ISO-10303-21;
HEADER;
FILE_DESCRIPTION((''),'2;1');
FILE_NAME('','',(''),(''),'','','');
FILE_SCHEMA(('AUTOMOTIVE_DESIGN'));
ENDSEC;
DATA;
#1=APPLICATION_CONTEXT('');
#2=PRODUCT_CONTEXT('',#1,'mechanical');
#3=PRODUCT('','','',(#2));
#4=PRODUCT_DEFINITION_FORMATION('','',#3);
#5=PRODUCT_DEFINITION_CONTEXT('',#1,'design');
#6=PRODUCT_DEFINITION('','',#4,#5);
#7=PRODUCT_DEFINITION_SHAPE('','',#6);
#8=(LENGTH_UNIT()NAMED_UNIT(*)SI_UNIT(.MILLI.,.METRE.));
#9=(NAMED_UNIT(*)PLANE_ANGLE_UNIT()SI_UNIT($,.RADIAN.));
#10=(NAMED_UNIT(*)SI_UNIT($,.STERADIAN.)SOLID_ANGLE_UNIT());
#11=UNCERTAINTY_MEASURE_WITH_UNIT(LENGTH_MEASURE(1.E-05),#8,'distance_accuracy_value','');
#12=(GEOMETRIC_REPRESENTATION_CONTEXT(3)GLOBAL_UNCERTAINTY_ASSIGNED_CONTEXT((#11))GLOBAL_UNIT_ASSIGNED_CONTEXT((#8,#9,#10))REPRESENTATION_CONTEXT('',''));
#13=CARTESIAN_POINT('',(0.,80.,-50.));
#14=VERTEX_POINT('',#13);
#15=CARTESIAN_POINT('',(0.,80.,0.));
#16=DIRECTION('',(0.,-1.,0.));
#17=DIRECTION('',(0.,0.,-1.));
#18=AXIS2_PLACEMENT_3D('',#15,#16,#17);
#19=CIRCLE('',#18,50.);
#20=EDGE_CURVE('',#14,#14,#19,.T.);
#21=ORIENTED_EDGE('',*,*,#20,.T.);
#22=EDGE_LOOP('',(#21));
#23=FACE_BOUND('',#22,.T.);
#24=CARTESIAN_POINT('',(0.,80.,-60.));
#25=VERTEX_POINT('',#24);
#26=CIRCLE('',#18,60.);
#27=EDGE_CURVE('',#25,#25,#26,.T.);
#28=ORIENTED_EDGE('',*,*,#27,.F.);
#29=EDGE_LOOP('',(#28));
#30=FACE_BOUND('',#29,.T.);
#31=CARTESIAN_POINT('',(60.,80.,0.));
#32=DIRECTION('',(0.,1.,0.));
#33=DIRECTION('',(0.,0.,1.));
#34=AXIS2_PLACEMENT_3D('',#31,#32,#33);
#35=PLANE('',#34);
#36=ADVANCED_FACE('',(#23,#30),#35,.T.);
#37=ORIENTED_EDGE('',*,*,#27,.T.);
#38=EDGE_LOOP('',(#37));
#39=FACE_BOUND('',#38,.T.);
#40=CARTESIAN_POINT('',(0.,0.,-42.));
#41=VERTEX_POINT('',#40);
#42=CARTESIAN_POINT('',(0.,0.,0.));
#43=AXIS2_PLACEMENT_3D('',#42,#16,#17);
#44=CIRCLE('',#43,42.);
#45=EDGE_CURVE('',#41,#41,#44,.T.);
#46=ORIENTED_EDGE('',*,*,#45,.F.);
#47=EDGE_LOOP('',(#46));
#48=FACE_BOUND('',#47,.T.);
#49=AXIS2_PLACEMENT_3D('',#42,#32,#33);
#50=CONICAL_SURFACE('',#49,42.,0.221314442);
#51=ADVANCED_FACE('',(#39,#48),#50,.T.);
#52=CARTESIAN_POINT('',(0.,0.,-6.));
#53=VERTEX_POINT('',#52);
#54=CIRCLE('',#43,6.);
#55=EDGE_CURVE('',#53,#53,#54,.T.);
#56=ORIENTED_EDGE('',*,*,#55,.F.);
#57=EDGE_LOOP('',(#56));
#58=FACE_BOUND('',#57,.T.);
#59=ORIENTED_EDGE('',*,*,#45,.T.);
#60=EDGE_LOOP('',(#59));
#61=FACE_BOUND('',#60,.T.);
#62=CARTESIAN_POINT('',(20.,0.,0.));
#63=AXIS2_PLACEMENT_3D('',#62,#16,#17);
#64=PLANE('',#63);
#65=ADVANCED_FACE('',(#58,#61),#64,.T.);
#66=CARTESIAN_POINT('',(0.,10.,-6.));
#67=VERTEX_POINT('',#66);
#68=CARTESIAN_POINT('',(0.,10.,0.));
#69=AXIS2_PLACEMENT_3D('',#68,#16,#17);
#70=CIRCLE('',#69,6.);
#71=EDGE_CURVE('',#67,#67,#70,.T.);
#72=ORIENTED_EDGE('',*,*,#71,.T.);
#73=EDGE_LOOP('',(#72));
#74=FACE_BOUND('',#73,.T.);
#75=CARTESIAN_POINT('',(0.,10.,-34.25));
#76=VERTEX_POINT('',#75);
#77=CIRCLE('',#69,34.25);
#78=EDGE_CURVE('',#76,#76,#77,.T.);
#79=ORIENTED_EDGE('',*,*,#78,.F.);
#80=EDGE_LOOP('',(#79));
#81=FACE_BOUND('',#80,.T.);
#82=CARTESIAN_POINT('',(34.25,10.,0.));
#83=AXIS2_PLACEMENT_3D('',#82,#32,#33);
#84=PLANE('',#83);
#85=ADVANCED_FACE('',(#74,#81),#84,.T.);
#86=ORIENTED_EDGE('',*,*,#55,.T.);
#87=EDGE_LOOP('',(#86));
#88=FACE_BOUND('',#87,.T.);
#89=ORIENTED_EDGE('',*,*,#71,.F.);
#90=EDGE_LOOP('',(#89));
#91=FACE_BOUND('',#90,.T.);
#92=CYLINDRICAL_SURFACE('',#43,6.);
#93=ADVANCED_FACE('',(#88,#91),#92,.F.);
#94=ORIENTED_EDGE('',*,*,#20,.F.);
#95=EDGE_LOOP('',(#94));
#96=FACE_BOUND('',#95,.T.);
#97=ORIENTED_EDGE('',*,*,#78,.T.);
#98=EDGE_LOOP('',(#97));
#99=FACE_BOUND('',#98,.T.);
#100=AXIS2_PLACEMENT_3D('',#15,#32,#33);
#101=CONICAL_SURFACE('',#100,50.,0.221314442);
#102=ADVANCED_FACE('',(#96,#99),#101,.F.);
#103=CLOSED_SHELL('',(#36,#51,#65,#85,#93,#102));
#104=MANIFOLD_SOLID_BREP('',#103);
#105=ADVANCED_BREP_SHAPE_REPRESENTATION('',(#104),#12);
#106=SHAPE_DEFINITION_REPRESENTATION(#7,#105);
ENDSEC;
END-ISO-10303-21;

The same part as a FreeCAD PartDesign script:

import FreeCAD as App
import Part
import Sketcher

V = App.Vector


def add_polygon(sketch, points):
    """Adds a closed chain of lines whose ends are joined by coincident constraints."""
    first, n = sketch.GeometryCount, len(points)
    for a, b in zip(points, points[1:] + points[:1]):
        sketch.addGeometry(Part.LineSegment(App.Vector(*a, 0), App.Vector(*b, 0)), False)
    for i in range(n):
        sketch.addConstraint(Sketcher.Constraint("Coincident", first + i, 2, first + (i + 1) % n, 1))

doc = App.newDocument("Part")
body = doc.addObject("PartDesign::Body", "Body")

# Sketch on XY plane
sketch1 = doc.addObject("Sketcher::SketchObject", "Sketch")
body.addObject(sketch1)
sketch1.AttachmentSupport = (doc.XY_Plane, [""])
sketch1.MapMode = "FlatFace"
add_polygon(sketch1, [(42, 0), (60, 80), (50, 80), (34.25, 10), (6, 10), (6, 0)])  # lines 0-5
sketch1.addConstraint([
    Sketcher.Constraint("Horizontal", 1),
    Sketcher.Constraint("Horizontal", 3),
    Sketcher.Constraint("Vertical", 4),
    Sketcher.Constraint("Horizontal", 5),
    Sketcher.Constraint("PointOnObject", 4, 2, -1),
    Sketcher.Constraint("Parallel", 0, 2),
    Sketcher.Constraint("Equal", 1, 4),
    Sketcher.Constraint("DistanceX", 1, 2, 1, 1, 10.0),
    Sketcher.Constraint("DistanceX", 5, 1, 5, 2, 36.0),
    Sketcher.Constraint("Distance", 0, 82.0),
    Sketcher.Constraint("DistanceX", -1, 1, 0, 2, 60.0),
    Sketcher.Constraint("DistanceY", -1, 1, 0, 2, 80.0),
])
revolution = doc.addObject("PartDesign::Revolution", "Revolution")
body.addObject(revolution)
revolution.Profile = sketch1
revolution.ReferenceAxis = (sketch1, ["V_Axis"])
revolution.Angle = 360

doc.recompute()
